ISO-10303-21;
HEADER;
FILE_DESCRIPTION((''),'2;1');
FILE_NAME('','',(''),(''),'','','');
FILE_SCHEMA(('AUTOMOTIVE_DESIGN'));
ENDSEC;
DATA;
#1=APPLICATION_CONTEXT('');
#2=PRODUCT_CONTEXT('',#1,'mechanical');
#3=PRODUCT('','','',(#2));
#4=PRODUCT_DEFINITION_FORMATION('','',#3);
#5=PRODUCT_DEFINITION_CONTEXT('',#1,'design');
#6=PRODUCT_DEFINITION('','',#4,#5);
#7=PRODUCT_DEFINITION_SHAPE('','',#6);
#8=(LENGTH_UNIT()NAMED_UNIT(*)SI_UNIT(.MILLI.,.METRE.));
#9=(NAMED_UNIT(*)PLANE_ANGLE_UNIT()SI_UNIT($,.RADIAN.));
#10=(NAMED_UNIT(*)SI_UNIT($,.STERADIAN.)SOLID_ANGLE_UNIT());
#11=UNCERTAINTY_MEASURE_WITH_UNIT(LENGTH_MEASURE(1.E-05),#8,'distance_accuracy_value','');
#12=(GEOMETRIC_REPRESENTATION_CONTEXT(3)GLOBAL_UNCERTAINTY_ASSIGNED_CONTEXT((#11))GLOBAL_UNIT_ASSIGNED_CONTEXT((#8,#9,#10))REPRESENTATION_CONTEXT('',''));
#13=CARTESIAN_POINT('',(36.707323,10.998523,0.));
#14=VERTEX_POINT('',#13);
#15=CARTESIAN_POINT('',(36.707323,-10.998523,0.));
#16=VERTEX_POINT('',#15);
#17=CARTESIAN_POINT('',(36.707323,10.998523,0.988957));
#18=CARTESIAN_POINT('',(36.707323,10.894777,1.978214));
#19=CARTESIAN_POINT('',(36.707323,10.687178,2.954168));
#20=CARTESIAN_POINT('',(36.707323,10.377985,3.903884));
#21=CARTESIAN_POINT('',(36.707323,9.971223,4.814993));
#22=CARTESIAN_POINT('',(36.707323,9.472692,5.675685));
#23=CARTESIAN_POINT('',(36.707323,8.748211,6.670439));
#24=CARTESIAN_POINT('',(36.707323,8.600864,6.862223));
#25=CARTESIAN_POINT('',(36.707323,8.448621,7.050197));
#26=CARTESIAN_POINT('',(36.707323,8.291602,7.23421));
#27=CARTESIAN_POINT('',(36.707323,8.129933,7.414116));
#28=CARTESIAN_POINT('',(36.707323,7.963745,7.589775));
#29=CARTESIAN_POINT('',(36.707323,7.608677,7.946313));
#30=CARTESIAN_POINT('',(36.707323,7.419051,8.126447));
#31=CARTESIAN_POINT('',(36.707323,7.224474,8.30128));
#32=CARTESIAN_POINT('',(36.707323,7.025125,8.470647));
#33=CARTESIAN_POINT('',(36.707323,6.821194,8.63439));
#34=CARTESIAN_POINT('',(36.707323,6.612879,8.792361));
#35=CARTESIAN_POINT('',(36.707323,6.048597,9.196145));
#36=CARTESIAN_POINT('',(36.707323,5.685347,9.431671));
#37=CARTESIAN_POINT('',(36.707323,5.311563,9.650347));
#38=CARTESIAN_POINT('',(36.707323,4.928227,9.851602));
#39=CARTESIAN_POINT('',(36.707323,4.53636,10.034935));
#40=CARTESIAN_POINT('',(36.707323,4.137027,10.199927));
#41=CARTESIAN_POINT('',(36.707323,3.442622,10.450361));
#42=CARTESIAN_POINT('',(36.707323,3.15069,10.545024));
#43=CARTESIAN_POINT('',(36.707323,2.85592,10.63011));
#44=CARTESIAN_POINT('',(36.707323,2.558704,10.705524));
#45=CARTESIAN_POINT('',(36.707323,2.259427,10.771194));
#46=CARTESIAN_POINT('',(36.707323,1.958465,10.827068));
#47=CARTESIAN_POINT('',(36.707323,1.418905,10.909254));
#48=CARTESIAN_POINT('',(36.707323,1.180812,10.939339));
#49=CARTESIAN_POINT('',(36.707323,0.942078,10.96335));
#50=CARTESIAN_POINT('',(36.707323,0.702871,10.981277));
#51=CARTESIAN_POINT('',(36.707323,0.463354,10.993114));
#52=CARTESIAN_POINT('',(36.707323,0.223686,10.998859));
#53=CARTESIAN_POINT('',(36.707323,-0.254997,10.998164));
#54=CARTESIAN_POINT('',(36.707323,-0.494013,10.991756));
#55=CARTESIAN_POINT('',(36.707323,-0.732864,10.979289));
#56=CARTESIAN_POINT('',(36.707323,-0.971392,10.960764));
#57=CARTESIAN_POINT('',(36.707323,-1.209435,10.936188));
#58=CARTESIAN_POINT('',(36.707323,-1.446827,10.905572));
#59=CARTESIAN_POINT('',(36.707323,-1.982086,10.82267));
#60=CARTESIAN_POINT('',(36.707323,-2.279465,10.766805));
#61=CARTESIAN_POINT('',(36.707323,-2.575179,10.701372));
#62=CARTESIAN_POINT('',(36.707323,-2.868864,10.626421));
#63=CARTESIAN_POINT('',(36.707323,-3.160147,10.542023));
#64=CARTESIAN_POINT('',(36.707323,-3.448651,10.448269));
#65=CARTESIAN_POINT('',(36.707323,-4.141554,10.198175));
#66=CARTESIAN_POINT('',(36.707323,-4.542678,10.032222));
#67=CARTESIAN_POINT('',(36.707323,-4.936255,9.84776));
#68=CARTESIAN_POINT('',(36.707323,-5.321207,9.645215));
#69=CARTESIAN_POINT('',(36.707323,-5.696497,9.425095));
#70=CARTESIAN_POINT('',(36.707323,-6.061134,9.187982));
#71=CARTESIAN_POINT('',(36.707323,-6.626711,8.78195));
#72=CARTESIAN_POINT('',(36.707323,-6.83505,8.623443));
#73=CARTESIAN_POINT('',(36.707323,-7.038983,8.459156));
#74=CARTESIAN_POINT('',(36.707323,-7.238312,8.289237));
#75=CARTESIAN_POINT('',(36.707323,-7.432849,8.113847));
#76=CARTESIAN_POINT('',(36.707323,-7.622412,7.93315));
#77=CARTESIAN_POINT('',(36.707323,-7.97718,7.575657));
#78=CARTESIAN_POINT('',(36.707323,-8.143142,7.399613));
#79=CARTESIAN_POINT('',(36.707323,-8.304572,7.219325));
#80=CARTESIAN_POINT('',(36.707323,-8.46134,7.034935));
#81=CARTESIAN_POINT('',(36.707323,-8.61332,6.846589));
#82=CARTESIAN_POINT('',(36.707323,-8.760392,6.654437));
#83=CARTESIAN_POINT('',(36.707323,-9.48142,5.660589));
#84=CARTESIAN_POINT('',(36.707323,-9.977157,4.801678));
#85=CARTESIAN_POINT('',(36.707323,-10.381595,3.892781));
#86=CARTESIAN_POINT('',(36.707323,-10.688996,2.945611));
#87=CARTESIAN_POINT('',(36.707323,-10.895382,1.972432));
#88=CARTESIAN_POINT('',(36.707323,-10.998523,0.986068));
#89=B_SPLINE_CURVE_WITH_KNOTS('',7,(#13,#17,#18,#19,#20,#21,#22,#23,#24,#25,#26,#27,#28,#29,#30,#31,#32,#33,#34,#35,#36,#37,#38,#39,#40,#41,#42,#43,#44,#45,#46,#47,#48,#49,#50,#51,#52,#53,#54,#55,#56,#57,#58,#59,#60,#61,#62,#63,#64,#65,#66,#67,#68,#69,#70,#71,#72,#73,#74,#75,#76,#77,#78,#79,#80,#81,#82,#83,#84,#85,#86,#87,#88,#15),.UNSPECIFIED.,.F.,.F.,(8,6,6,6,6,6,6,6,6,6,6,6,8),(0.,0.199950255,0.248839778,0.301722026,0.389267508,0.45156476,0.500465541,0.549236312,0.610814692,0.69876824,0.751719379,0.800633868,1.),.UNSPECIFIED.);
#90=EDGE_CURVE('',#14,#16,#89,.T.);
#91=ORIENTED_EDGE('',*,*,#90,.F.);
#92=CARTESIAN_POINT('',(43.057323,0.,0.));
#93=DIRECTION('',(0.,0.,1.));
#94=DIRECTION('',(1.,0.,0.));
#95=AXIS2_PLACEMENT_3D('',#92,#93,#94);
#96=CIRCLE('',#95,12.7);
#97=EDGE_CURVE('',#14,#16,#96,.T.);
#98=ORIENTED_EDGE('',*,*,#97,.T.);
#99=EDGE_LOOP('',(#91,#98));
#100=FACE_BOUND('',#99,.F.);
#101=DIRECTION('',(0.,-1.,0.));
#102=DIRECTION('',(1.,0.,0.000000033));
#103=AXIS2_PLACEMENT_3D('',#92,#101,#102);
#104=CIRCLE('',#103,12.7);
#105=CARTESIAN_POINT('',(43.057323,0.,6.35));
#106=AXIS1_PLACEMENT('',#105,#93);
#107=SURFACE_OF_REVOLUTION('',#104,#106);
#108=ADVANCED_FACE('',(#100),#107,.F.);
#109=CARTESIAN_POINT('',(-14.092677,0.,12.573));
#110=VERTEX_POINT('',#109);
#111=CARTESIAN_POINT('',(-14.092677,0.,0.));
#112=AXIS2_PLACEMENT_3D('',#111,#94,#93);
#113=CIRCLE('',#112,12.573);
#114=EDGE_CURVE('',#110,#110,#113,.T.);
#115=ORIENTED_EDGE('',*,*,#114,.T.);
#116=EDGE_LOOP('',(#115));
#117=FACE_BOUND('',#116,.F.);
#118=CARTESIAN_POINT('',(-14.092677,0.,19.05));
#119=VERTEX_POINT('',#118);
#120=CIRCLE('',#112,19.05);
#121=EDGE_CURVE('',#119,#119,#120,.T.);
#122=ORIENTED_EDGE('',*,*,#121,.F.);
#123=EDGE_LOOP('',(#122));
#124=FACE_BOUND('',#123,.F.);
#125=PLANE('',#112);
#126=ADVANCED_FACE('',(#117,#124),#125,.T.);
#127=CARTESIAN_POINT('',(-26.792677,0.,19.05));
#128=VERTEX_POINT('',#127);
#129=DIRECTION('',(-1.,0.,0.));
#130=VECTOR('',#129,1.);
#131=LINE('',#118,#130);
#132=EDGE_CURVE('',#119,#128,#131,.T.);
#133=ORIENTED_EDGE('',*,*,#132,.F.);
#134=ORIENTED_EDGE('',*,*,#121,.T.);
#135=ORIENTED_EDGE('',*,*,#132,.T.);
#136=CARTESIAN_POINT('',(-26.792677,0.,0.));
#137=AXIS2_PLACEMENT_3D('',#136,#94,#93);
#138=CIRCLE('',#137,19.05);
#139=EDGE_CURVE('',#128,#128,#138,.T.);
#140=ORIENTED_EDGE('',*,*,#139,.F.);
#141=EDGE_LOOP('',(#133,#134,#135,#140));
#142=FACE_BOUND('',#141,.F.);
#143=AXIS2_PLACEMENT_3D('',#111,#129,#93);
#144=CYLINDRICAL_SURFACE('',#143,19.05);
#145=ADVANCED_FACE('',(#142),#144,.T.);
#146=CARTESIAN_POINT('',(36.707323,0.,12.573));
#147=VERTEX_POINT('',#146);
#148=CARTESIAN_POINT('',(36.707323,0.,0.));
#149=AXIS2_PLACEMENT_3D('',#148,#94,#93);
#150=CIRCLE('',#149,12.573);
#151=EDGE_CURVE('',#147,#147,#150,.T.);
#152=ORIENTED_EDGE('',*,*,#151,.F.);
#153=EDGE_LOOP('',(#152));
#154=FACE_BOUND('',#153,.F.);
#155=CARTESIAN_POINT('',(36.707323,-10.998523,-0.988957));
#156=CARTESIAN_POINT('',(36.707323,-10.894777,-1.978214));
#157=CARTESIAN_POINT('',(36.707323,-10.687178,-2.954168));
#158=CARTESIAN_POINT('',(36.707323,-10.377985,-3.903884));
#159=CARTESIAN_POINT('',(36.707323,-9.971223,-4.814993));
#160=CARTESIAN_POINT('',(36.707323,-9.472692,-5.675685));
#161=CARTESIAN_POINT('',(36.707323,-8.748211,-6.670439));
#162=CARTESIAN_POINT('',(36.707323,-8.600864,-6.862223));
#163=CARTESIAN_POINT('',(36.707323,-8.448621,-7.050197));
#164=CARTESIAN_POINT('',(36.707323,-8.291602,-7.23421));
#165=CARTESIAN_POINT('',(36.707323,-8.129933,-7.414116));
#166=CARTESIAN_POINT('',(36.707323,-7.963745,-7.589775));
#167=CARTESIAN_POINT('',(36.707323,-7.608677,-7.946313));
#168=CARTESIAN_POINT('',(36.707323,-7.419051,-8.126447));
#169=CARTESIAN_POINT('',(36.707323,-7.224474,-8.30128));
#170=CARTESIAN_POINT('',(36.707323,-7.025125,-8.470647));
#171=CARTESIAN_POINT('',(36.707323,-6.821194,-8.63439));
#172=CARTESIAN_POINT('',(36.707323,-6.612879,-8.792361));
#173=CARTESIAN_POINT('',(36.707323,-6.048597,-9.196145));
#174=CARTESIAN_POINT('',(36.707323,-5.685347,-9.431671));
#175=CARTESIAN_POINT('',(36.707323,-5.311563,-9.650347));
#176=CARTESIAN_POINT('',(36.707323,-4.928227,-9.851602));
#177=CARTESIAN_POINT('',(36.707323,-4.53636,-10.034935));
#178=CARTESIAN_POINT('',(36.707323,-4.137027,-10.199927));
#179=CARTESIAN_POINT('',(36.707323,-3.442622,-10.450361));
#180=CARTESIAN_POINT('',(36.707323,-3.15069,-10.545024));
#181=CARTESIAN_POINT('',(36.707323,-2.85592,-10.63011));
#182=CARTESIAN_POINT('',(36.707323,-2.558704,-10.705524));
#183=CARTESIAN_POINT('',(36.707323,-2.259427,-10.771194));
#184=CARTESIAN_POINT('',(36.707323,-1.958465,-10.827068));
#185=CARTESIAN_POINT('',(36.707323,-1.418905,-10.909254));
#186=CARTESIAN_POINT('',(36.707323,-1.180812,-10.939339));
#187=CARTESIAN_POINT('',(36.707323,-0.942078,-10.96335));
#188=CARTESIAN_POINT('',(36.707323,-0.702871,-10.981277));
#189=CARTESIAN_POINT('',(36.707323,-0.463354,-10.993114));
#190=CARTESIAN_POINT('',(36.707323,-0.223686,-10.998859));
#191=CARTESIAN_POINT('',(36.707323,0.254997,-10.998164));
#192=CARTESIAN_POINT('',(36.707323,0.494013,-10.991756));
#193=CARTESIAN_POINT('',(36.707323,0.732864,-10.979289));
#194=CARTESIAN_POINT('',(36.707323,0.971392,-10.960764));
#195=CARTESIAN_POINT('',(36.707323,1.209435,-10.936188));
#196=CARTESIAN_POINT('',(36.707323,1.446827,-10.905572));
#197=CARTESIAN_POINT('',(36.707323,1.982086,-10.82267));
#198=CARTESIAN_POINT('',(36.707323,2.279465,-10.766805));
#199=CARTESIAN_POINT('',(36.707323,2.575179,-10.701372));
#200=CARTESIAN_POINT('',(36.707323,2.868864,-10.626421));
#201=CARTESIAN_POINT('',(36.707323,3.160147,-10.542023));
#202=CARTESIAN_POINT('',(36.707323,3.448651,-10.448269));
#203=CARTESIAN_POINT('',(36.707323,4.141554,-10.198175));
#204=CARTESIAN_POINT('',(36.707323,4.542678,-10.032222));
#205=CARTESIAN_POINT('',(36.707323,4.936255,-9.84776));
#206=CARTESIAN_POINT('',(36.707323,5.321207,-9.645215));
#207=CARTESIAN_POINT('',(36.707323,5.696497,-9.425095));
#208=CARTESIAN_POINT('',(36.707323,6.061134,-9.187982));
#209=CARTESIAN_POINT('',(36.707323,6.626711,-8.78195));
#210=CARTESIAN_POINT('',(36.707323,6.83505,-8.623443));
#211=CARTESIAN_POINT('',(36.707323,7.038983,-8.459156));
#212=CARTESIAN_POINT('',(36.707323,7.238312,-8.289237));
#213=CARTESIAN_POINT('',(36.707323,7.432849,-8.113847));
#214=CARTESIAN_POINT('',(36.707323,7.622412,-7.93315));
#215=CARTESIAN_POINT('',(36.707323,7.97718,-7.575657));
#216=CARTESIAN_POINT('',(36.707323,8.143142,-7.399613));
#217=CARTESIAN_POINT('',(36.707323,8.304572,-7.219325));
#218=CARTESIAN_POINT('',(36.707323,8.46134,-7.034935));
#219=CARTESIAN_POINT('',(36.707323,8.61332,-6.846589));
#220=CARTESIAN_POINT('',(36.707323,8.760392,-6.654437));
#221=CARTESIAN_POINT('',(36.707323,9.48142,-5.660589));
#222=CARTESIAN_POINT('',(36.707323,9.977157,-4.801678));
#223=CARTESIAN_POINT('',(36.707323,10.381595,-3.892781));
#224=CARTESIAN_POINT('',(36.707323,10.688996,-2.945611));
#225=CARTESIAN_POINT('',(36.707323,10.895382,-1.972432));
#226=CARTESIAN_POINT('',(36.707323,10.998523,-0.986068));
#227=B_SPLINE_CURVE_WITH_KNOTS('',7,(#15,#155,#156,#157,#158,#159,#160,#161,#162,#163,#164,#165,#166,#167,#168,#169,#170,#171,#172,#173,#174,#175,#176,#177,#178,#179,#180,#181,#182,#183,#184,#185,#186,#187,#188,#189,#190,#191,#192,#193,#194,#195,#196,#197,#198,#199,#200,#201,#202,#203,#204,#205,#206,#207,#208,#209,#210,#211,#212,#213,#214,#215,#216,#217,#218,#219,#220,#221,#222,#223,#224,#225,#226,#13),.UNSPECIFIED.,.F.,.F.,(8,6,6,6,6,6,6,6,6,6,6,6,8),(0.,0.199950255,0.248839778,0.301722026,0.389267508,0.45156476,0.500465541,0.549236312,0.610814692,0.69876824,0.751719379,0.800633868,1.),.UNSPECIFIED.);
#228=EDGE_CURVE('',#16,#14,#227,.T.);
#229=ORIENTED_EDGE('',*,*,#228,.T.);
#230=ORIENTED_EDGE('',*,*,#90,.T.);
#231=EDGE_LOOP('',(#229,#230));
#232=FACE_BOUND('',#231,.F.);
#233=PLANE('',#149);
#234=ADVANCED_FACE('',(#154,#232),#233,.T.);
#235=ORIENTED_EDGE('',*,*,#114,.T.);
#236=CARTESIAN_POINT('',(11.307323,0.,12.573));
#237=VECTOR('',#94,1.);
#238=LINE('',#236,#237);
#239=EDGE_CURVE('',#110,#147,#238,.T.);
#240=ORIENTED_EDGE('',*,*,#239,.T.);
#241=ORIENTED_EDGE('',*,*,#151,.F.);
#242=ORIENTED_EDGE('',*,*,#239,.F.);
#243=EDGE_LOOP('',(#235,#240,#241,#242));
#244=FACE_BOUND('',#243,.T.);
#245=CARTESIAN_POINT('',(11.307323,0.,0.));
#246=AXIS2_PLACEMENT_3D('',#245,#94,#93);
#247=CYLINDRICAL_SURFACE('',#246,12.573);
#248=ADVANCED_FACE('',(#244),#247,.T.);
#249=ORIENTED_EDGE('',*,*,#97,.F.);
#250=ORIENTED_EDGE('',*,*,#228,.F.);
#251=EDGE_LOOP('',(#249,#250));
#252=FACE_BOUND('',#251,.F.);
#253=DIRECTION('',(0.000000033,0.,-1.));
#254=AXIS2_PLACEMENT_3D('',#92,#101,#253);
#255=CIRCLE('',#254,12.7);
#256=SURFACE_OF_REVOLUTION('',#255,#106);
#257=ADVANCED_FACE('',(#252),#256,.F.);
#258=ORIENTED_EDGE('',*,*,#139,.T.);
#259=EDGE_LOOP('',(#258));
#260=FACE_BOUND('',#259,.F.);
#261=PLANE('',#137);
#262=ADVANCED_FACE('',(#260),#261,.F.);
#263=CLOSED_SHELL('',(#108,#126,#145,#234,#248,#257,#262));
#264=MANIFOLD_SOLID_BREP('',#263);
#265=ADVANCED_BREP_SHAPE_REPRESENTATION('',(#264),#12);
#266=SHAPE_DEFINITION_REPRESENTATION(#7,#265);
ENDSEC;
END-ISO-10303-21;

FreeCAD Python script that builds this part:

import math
import FreeCAD as App
import Part
import Sketcher

V = App.Vector
Q = App.Units.Quantity


def add_polygon(sketch, points):
    """Adds a closed chain of lines whose ends are joined by coincident constraints."""
    first, n = sketch.GeometryCount, len(points)
    for a, b in zip(points, points[1:] + points[:1]):
        sketch.addGeometry(Part.LineSegment(App.Vector(*a, 0), App.Vector(*b, 0)), False)
    for i in range(n):
        sketch.addConstraint(Sketcher.Constraint("Coincident", first + i, 2, first + (i + 1) % n, 1))

doc = App.newDocument("Part")
params = doc.addObject("Spreadsheet::Sheet", "Params")
for row, (alias, value) in enumerate([
    ("sketch1_width", "2 in"),
    ("sketch1_width2", "0.5 in"),
    ("sketch1_height", "0.75 in"),
    ("sketch1_height2", "0.495 in"),
    ("revolution_angle", "360 deg"),
    ("sketch2_radius", "0.5 in"),
    ("groove_angle", "360 deg"),
], start=1):
    params.set(f"A{row}", alias)
    params.set(f"B{row}", "=" + value)
    params.setAlias(f"B{row}", alias)

body = doc.addObject("PartDesign::Body", "Body")

# Sketch on XZ plane
sketch1 = doc.addObject("Sketcher::SketchObject", "Sketch")
body.addObject(sketch1)
sketch1.AttachmentSupport = (doc.XZ_Plane, [""])
sketch1.MapMode = "FlatFace"
add_polygon(sketch1, [(37, 0), (37, 13), (-14, 13), (-14, 19), (-27, 19), (-27, 0)])  # lines 0-5
sketch1.addConstraint(Sketcher.Constraint("Vertical", 0))
sketch1.addConstraint(Sketcher.Constraint("Horizontal", 1))
sketch1.addConstraint(Sketcher.Constraint("Vertical", 2))
sketch1.addConstraint(Sketcher.Constraint("Horizontal", 3))
sketch1.addConstraint(Sketcher.Constraint("Vertical", 4))
sketch1.addConstraint(Sketcher.Constraint("Horizontal", 5))
sketch1.addConstraint(Sketcher.Constraint("PointOnObject", 4, 2, -1))
sketch1.addConstraint(Sketcher.Constraint("DistanceX", 1, 2, 1, 1, Q("2 in")))
sketch1.addConstraint(Sketcher.Constraint("DistanceX", 3, 2, 3, 1, Q("0.5 in")))
sketch1.addConstraint(Sketcher.Constraint("DistanceY", 4, 2, 4, 1, Q("0.75 in")))
sketch1.addConstraint(Sketcher.Constraint("DistanceY", 0, 1, 0, 2, Q("0.495 in")))
sketch1.addConstraint(Sketcher.Constraint("DistanceX", -1, 1, 0, 2, 36.707323))
sketch1.setExpression("Constraints[13]", "Params.sketch1_width")
sketch1.setExpression("Constraints[14]", "Params.sketch1_width2")
sketch1.setExpression("Constraints[15]", "Params.sketch1_height")
sketch1.setExpression("Constraints[16]", "Params.sketch1_height2")
revolution = doc.addObject("PartDesign::Revolution", "Revolution")
body.addObject(revolution)
revolution.Profile = sketch1
revolution.ReferenceAxis = (sketch1, ["H_Axis"])
revolution.setExpression("Angle", "Params.revolution_angle")

# Sketch on XZ plane
sketch2 = doc.addObject("Sketcher::SketchObject", "Sketch001")
body.addObject(sketch2)
sketch2.AttachmentSupport = (doc.XZ_Plane, [""])
sketch2.MapMode = "FlatFace"
sketch2.addGeometry(Part.ArcOfCircle(Part.Circle(V(43, 0, 0), V(0, 0, 1), 13), math.radians(-90), math.radians(0)), False)
sketch2.addGeometry(Part.ArcOfCircle(Part.Circle(V(43, 0, 0), V(0, 0, 1), 13), math.radians(0), math.radians(90)), False)
sketch2.addGeometry(Part.LineSegment(V(43, 13, 0), V(43, -13, 0)), False)
sketch2.addGeometry(Part.LineSegment(V(43, -13, 0), V(43, 13, 0)), True)  # axis
sketch2.addConstraint(Sketcher.Constraint("Tangent", 0, 2, 1, 1))
sketch2.addConstraint(Sketcher.Constraint("Coincident", 1, 2, 2, 1))
sketch2.addConstraint(Sketcher.Constraint("Coincident", 2, 2, 0, 1))
sketch2.addConstraint(Sketcher.Constraint("Vertical", 2))
sketch2.addConstraint(Sketcher.Constraint("Vertical", 3))
sketch2.addConstraint(Sketcher.Constraint("Coincident", 3, 1, 2, 2))
sketch2.addConstraint(Sketcher.Constraint("Equal", 0, 1))
sketch2.addConstraint(Sketcher.Constraint("PointOnObject", 0, 3, -1))
sketch2.addConstraint(Sketcher.Constraint("PointOnObject", 0, 2, -1))
sketch2.addConstraint(Sketcher.Constraint("Vertical", 0, 3, 1, 2))
sketch2.addConstraint(Sketcher.Constraint("Equal", 2, 3))
sketch2.addConstraint(Sketcher.Constraint("Radius", 0, Q("0.5 in")))
sketch2.addConstraint(Sketcher.Constraint("DistanceX", -1, 1, 0, 3, 43.057323))
sketch2.setExpression("Constraints[11]", "Params.sketch2_radius")
groove = doc.addObject("PartDesign::Groove", "Groove")
body.addObject(groove)
groove.Profile = sketch2
groove.ReferenceAxis = (sketch2, ["Axis0"])
groove.setExpression("Angle", "Params.groove_angle")

doc.recompute()
